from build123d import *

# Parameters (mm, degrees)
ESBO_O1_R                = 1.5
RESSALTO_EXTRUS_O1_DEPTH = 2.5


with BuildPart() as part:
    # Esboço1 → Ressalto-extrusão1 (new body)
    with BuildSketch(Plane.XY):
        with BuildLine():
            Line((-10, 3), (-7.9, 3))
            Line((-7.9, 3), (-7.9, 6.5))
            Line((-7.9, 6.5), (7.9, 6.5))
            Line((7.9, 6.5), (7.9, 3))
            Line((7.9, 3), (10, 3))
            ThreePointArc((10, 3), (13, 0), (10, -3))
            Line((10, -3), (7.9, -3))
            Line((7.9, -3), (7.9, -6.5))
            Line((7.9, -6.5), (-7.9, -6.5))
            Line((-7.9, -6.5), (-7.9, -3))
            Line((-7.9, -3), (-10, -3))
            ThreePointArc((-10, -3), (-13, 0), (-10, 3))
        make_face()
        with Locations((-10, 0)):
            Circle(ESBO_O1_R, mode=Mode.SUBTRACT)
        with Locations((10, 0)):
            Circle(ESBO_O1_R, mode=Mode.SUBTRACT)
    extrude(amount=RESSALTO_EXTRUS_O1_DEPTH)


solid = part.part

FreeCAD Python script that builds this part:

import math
import FreeCAD as App
import Part
import Sketcher
from FreeCAD import Vector
Q = App.Units.Quantity

doc = App.newDocument("Part")
body = doc.addObject("PartDesign::Body", "Body")

sketch1 = doc.addObject("Sketcher::SketchObject", "Sketch")
body.addObject(sketch1)
sketch1.AttachmentSupport = (doc.XY_Plane, [""])
sketch1.MapMode = "FlatFace"
sketch1.addGeometry(Part.LineSegment(Vector(-7.9, 3, 0), Vector(-10, 3, 0)), False)
sketch1.addGeometry(Part.ArcOfCircle(Part.Circle(Vector(-10, 0, 0), Vector(0, 0, 1), 3), math.radians(90), math.radians(270)), False)
sketch1.addGeometry(Part.LineSegment(Vector(-10, -3, 0), Vector(-7.9, -3, 0)), False)
sketch1.addGeometry(Part.LineSegment(Vector(-7.9, -3, 0), Vector(-7.9, -6.5, 0)), False)
sketch1.addGeometry(Part.LineSegment(Vector(-7.9, -6.5, 0), Vector(7.9, -6.5, 0)), False)
sketch1.addGeometry(Part.LineSegment(Vector(7.9, -6.5, 0), Vector(7.9, -3, 0)), False)
sketch1.addGeometry(Part.LineSegment(Vector(7.9, -3, 0), Vector(10, -3, 0)), False)
sketch1.addGeometry(Part.ArcOfCircle(Part.Circle(Vector(10, 0, 0), Vector(0, 0, 1), 3), math.radians(-90), math.radians(90)), False)
sketch1.addGeometry(Part.LineSegment(Vector(10, 3, 0), Vector(7.9, 3, 0)), False)
sketch1.addGeometry(Part.LineSegment(Vector(7.9, 3, 0), Vector(7.9, 6.5, 0)), False)
sketch1.addGeometry(Part.LineSegment(Vector(7.9, 6.5, 0), Vector(-7.9, 6.5, 0)), False)
sketch1.addGeometry(Part.LineSegment(Vector(-7.9, 6.5, 0), Vector(-7.9, 3, 0)), False)
sketch1.addGeometry(Part.Circle(Vector(10, 0, 0), Vector(0, 0, 1), 1.5), False)
sketch1.addGeometry(Part.Circle(Vector(-10, 0, 0), Vector(0, 0, 1), 1.5), False)
sketch1.addConstraint(Sketcher.Constraint("Tangent", 0, 2, 1, 1))
sketch1.addConstraint(Sketcher.Constraint("Tangent", 1, 2, 2, 1))
sketch1.addConstraint(Sketcher.Constraint("Coincident", 2, 2, 3, 1))
sketch1.addConstraint(Sketcher.Constraint("Coincident", 3, 2, 4, 1))
sketch1.addConstraint(Sketcher.Constraint("Coincident", 4, 2, 5, 1))
sketch1.addConstraint(Sketcher.Constraint("Coincident", 5, 2, 6, 1))
sketch1.addConstraint(Sketcher.Constraint("Tangent", 6, 2, 7, 1))
sketch1.addConstraint(Sketcher.Constraint("Tangent", 7, 2, 8, 1))
sketch1.addConstraint(Sketcher.Constraint("Coincident", 8, 2, 9, 1))
sketch1.addConstraint(Sketcher.Constraint("Coincident", 9, 2, 10, 1))
sketch1.addConstraint(Sketcher.Constraint("Coincident", 10, 2, 11, 1))
sketch1.addConstraint(Sketcher.Constraint("Coincident", 11, 2, 0, 1))
sketch1.addConstraint(Sketcher.Constraint("Horizontal", 0))
sketch1.addConstraint(Sketcher.Constraint("Horizontal", 2))
sketch1.addConstraint(Sketcher.Constraint("Vertical", 3))
sketch1.addConstraint(Sketcher.Constraint("Horizontal", 4))
sketch1.addConstraint(Sketcher.Constraint("Vertical", 5))
sketch1.addConstraint(Sketcher.Constraint("Horizontal", 6))
sketch1.addConstraint(Sketcher.Constraint("Horizontal", 8))
sketch1.addConstraint(Sketcher.Constraint("Vertical", 9))
sketch1.addConstraint(Sketcher.Constraint("Horizontal", 10))
sketch1.addConstraint(Sketcher.Constraint("Vertical", 11))
sketch1.addConstraint(Sketcher.Constraint("Coincident", 12, 3, 7, 3))
sketch1.addConstraint(Sketcher.Constraint("Coincident", 13, 3, 1, 3))
sketch1.addConstraint(Sketcher.Constraint("Equal", 1, 7))
sketch1.addConstraint(Sketcher.Constraint("Equal", 12, 13))
sketch1.addConstraint(Sketcher.Constraint("Symmetric", 1, 3, 7, 3, -1, 1))
sketch1.addConstraint(Sketcher.Constraint("Symmetric", 3, 2, 9, 2, -1, 1))
sketch1.addConstraint(Sketcher.Constraint("Symmetric", 2, 2, 5, 2, -2))
sketch1.addConstraint(Sketcher.Constraint("Vertical", 3, 2, 10, 2))
sketch1.addConstraint(Sketcher.Constraint("Diameter", 12, Q("3 mm")))
sketch1.addConstraint(Sketcher.Constraint("Radius", 1, Q("3 mm")))
sketch1.addConstraint(Sketcher.Constraint("DistanceX", 0, 2, 0, 1, Q("2.1 mm")))
sketch1.addConstraint(Sketcher.Constraint("DistanceX", 4, 1, 4, 2, Q("15.8 mm")))
sketch1.addConstraint(Sketcher.Constraint("DistanceY", 3, 2, 3, 1, Q("3.5 mm")))
pad1 = doc.addObject("PartDesign::Pad", "Pad")
body.addObject(pad1)
pad1.Profile = sketch1
pad1.Length = 2.5

doc.recompute()
